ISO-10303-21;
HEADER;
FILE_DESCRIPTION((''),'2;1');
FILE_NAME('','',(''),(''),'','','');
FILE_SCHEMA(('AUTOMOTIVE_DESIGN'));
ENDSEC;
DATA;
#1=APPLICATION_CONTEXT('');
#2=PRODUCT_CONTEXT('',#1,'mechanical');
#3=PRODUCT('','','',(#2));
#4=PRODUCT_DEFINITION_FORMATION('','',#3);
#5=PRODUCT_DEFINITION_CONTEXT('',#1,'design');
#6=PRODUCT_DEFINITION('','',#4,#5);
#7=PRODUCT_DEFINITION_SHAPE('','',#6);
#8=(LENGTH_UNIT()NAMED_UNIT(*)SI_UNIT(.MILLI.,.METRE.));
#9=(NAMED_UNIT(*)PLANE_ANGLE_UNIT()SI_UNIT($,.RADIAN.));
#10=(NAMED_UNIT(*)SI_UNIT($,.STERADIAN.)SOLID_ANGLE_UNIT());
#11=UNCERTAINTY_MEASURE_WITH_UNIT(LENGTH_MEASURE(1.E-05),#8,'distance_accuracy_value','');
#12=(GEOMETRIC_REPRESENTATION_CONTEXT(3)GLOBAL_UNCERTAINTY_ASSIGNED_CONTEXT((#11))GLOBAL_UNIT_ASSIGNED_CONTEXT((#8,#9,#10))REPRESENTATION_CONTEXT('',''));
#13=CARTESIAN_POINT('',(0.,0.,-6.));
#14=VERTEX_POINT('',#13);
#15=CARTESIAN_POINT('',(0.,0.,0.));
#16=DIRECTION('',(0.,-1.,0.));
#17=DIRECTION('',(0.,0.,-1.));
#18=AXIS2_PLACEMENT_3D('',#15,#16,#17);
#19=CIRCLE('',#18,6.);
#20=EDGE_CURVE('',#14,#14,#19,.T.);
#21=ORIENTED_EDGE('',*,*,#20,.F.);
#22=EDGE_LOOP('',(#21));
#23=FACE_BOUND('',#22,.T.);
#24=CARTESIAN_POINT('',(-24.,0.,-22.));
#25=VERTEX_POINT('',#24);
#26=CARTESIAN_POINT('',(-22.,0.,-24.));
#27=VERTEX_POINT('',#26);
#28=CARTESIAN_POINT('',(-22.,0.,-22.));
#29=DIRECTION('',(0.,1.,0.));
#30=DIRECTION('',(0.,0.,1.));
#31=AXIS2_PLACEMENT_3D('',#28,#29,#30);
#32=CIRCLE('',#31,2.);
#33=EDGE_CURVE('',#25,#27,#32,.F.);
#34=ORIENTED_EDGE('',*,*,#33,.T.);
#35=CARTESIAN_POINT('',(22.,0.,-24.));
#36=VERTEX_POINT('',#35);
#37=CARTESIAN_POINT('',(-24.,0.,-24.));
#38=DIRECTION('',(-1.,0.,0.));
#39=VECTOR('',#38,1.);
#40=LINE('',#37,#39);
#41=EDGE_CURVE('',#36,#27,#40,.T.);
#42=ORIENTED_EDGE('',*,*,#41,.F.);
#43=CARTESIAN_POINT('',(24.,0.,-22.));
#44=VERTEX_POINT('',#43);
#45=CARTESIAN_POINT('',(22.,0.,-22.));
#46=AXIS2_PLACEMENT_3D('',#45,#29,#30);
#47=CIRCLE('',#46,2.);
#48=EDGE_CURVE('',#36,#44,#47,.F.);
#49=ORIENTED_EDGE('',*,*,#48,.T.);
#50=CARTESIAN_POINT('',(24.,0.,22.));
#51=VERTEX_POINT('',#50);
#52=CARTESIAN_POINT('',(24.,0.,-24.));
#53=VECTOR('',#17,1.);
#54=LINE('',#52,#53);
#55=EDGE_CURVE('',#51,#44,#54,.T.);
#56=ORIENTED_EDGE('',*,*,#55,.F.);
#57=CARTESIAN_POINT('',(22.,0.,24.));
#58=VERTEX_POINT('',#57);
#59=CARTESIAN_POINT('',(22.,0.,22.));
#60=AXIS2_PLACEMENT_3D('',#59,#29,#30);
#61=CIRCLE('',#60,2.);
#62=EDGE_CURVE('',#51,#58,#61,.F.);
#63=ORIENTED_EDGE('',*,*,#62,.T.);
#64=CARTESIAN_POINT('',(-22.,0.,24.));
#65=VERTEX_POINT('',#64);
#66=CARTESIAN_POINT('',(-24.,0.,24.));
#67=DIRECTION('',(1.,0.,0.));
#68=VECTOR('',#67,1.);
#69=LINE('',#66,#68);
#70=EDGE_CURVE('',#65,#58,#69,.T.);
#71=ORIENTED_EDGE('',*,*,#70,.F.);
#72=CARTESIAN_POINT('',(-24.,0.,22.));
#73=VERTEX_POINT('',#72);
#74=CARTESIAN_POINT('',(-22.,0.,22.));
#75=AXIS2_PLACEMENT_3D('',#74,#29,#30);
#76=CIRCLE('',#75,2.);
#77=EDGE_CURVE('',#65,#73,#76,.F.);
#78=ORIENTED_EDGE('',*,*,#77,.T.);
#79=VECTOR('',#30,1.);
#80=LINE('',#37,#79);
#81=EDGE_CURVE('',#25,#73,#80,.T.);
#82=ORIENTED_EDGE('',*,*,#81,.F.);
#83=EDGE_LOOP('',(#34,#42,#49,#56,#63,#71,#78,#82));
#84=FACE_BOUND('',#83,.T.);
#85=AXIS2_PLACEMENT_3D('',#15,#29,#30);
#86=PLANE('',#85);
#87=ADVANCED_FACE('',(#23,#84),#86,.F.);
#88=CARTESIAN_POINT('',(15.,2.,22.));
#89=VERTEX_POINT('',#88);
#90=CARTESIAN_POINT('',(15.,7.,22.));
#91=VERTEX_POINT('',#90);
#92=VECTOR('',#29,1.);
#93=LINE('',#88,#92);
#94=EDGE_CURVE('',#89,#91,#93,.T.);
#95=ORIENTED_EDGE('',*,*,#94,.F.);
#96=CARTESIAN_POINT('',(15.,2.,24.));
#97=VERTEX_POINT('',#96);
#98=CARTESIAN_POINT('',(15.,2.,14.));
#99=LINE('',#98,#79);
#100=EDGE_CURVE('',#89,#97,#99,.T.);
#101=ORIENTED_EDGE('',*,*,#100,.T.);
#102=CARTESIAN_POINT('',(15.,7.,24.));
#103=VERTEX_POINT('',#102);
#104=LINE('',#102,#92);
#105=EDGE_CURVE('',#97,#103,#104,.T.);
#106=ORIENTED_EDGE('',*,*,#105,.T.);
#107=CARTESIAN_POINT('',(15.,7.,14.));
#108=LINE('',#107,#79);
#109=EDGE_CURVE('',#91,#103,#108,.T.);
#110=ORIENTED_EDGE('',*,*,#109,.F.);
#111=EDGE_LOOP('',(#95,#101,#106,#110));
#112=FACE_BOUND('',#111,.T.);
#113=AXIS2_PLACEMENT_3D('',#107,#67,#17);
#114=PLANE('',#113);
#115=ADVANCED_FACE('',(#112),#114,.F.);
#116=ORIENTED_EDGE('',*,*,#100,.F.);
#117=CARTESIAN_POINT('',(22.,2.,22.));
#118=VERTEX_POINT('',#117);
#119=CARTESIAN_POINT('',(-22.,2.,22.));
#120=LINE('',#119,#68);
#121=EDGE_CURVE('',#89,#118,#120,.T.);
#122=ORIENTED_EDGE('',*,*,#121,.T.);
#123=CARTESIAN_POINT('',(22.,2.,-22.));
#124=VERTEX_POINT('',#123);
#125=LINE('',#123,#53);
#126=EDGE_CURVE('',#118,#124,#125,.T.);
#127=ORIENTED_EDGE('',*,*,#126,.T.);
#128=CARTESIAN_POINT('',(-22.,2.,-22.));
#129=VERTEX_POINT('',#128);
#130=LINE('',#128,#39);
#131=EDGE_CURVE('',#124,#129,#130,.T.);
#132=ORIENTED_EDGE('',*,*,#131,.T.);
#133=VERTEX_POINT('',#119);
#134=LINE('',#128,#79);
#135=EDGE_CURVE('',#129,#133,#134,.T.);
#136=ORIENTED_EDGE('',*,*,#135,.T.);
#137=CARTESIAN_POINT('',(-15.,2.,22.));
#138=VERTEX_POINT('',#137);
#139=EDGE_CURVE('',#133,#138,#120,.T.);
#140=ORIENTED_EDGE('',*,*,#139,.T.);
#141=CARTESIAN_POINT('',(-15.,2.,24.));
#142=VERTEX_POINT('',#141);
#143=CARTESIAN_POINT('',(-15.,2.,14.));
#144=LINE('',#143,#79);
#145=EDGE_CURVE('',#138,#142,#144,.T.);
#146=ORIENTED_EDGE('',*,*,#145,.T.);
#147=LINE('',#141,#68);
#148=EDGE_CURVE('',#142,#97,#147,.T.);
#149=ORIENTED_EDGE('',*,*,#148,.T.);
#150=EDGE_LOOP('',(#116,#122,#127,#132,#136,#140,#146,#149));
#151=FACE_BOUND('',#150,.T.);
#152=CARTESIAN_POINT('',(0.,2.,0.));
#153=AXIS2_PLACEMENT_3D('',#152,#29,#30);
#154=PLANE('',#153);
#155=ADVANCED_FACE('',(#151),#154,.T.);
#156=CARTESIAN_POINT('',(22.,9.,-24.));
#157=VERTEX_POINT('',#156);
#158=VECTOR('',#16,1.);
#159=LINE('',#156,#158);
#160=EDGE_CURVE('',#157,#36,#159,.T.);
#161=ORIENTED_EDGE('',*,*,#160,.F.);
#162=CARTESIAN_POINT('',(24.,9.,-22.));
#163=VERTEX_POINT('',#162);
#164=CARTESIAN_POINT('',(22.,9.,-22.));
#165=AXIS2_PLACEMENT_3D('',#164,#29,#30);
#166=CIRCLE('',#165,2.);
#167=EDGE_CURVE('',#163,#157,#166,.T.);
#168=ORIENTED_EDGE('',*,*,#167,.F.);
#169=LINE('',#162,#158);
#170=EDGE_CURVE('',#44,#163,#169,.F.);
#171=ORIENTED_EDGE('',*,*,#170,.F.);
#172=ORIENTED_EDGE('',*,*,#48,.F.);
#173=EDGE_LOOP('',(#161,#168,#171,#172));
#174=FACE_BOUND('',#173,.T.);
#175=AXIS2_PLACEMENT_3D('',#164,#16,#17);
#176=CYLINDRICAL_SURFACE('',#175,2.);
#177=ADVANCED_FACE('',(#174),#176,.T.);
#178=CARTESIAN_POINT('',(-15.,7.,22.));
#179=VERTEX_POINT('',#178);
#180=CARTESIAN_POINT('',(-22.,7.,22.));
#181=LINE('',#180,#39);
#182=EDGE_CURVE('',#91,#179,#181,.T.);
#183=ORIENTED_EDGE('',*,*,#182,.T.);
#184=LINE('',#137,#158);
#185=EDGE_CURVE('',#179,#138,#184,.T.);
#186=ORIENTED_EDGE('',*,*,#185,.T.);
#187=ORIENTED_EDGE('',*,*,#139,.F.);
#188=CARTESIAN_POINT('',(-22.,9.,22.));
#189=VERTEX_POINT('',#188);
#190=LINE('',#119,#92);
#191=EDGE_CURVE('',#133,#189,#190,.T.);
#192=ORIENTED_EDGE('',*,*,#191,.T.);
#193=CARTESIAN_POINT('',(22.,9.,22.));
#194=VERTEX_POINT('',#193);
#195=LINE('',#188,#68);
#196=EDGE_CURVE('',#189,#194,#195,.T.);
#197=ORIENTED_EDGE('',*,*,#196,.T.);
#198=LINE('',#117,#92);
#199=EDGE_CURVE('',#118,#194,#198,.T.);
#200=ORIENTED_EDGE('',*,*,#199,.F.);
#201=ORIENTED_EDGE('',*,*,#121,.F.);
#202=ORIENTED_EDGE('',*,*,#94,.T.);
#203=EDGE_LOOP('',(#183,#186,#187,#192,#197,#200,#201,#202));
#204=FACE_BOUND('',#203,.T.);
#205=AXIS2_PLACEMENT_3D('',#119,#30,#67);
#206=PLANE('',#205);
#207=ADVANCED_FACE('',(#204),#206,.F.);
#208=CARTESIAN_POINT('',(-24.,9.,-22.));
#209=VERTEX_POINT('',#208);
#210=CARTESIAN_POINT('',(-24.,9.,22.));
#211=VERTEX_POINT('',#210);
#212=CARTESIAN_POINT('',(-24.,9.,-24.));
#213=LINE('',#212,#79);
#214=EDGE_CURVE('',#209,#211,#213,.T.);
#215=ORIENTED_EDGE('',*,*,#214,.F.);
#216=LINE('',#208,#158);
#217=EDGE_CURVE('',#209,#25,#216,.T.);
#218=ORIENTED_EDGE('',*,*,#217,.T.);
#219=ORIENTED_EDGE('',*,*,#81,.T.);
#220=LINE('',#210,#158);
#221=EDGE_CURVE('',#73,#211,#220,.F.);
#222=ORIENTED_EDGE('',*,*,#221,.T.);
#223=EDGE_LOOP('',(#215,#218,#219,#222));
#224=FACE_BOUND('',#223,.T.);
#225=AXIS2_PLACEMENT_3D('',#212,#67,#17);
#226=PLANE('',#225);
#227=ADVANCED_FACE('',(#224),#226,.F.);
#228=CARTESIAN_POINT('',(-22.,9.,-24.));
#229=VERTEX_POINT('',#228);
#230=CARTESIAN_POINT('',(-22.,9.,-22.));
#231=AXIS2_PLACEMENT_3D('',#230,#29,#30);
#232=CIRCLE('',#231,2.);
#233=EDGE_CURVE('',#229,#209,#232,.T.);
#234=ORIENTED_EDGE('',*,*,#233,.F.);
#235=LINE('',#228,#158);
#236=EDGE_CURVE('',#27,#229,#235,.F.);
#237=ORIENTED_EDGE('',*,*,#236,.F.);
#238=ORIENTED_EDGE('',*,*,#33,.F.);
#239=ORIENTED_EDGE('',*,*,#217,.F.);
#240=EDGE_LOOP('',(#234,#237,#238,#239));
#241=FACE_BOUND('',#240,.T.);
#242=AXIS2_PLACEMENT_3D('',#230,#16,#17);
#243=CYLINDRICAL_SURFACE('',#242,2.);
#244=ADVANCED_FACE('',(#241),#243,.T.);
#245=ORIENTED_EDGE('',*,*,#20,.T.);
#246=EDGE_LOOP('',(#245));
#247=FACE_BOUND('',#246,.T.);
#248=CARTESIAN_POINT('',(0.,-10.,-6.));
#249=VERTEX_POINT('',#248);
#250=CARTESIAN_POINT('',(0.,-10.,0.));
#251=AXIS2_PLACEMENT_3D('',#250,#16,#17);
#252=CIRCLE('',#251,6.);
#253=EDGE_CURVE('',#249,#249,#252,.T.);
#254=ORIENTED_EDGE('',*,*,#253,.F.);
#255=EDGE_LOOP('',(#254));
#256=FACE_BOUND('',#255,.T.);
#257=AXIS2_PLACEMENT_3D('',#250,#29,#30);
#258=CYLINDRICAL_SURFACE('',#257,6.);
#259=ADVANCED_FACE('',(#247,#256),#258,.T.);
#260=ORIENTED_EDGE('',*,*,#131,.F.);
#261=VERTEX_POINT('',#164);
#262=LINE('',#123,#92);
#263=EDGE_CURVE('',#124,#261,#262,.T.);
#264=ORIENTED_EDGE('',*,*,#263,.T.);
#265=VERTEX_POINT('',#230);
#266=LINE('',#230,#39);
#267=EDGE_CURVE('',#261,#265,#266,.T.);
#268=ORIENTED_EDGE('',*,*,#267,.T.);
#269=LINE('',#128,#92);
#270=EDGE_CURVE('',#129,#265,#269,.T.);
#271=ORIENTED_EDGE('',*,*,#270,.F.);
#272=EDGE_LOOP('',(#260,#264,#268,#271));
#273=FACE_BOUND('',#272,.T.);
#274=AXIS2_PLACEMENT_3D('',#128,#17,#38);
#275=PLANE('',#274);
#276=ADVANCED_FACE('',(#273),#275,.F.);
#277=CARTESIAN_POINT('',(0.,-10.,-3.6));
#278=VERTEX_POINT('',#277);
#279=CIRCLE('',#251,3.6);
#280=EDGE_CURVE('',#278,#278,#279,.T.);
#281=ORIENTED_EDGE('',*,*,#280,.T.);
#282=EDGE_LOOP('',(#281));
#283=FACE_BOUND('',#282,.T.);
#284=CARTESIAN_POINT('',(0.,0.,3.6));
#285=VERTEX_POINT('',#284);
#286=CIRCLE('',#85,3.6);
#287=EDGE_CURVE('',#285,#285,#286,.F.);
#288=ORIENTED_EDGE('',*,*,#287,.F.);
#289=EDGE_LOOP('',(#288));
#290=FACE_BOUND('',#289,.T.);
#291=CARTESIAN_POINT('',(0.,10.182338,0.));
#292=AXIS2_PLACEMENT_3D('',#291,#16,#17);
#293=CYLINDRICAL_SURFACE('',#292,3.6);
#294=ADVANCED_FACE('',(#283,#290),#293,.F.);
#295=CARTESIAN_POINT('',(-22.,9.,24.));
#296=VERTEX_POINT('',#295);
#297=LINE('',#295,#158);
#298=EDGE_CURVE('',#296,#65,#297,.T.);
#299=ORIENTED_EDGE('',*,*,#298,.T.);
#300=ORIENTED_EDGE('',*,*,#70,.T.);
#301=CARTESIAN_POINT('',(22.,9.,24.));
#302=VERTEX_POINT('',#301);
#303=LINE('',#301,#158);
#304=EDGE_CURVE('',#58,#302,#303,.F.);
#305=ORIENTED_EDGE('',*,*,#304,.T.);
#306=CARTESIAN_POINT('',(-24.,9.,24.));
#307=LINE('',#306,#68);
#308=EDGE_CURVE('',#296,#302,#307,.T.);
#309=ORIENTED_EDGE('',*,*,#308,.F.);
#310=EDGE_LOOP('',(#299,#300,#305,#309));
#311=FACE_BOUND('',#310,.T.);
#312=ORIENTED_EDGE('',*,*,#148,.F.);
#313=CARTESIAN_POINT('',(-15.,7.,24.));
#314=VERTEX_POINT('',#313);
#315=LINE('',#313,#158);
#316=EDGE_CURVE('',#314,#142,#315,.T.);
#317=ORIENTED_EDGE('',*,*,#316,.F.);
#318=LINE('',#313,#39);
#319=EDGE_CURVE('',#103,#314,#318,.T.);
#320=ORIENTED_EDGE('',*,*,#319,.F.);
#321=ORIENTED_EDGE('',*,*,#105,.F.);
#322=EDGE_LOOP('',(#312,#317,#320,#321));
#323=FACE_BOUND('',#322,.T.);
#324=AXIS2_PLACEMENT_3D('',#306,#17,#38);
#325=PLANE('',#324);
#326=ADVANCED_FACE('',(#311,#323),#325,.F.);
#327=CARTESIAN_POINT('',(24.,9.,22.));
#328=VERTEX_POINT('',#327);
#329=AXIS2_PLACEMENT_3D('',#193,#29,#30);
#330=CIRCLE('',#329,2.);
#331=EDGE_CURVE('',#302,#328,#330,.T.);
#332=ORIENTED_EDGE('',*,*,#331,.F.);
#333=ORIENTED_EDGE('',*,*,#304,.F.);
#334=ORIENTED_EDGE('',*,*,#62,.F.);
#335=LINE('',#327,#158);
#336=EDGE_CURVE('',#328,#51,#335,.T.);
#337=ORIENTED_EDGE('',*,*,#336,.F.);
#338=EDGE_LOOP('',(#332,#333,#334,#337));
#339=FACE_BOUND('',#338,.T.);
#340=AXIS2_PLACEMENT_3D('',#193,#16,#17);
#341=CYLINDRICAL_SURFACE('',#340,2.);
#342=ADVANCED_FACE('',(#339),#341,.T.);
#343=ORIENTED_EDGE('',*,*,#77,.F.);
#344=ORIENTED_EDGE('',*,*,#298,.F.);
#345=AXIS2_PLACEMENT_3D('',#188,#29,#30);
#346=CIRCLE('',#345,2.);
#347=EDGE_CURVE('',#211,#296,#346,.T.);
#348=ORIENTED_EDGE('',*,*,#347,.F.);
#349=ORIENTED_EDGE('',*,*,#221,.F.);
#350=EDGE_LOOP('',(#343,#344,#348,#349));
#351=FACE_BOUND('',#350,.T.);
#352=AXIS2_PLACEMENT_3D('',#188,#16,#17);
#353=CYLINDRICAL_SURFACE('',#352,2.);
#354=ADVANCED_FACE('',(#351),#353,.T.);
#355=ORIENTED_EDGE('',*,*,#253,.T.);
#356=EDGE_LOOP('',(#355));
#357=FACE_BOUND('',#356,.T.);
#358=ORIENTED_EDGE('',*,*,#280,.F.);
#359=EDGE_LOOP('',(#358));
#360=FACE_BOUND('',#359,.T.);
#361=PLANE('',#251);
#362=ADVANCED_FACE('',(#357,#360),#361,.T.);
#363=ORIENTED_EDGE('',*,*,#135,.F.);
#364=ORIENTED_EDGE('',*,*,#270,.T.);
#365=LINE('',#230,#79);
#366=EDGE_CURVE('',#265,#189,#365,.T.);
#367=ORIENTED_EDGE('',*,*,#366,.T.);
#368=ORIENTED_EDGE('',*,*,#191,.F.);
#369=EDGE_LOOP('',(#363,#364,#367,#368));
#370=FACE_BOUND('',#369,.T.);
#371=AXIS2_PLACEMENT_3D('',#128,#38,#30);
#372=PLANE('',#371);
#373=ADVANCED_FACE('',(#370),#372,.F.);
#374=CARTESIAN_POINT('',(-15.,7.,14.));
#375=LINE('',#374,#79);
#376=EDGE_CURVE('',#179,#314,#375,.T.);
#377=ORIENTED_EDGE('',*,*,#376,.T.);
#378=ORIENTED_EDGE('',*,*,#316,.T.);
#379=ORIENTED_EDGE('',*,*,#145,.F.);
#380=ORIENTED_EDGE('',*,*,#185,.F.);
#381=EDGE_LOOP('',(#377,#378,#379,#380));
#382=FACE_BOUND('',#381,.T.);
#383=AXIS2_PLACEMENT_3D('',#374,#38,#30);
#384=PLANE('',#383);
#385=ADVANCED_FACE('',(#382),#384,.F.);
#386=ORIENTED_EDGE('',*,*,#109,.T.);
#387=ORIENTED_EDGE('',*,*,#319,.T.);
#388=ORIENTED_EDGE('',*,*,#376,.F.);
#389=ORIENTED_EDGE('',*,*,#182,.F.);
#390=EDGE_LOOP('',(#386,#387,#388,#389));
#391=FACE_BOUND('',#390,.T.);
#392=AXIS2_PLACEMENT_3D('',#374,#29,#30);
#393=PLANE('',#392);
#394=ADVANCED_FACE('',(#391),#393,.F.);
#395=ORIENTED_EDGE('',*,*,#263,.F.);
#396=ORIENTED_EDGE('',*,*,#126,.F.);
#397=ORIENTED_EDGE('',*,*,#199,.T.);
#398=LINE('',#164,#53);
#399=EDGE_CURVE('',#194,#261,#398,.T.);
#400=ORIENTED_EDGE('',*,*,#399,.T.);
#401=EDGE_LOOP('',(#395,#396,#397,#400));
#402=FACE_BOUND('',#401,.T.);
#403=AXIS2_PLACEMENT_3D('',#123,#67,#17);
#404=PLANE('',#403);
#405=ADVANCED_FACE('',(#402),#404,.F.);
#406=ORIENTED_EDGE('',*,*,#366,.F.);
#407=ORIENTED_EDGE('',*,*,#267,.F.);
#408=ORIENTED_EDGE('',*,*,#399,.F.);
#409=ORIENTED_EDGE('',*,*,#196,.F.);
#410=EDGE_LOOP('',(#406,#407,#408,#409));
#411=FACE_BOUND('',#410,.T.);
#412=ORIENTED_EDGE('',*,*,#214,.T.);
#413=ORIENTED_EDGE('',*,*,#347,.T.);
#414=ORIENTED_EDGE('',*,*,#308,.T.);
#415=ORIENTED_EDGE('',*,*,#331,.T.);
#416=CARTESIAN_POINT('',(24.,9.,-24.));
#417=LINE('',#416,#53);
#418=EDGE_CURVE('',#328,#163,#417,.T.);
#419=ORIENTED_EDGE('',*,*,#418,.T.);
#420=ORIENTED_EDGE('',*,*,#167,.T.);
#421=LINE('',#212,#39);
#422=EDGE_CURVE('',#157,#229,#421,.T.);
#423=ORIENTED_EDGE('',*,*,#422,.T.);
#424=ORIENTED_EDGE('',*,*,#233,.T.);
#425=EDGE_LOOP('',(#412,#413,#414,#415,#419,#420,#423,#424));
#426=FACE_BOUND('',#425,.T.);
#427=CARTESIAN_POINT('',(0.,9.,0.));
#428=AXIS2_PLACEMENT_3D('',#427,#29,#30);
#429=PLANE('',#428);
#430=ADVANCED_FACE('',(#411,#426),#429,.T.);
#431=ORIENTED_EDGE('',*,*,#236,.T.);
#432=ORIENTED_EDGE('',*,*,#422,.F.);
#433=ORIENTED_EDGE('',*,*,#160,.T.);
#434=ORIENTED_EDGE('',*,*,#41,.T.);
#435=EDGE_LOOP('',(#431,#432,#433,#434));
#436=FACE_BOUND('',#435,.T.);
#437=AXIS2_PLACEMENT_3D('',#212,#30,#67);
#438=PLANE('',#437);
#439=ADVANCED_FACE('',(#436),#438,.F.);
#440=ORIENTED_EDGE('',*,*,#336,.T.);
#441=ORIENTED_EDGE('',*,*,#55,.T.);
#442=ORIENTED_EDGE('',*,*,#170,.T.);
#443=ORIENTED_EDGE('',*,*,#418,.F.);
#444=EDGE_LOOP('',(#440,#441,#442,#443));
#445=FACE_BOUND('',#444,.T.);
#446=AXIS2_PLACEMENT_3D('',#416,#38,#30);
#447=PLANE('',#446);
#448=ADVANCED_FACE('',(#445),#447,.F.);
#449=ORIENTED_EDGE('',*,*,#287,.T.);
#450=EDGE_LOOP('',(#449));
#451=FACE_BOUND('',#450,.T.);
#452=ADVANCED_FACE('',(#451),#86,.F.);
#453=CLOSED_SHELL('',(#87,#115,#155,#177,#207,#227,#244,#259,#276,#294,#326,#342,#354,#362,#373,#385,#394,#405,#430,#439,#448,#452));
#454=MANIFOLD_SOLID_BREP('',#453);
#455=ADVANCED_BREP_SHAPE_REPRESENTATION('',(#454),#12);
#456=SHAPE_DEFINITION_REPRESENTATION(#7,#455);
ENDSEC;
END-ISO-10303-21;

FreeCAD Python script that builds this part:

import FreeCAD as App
import Part
import Sketcher

V = App.Vector


def edges_at(feature, points):
    """Names of the edges that pass closest to the given points."""
    edges = feature.Shape.Edges
    near = lambda p: min(range(len(edges)), key=lambda i: edges[i].distToShape(Part.Vertex(*p))[0])
    return sorted({f"Edge{near(p) + 1}" for p in points})


def add_polygon(sketch, points):
    """Adds a closed chain of lines whose ends are joined by coincident constraints."""
    first, n = sketch.GeometryCount, len(points)
    for a, b in zip(points, points[1:] + points[:1]):
        sketch.addGeometry(Part.LineSegment(App.Vector(*a, 0), App.Vector(*b, 0)), False)
    for i in range(n):
        sketch.addConstraint(Sketcher.Constraint("Coincident", first + i, 2, first + (i + 1) % n, 1))

doc = App.newDocument("Part")
params = doc.addObject("Spreadsheet::Sheet", "Params")
for row, (alias, value) in enumerate([
    ("sketch1_width", "48 mm"),
    ("pad1_length", "9 mm"),
    ("sketch2_width", "44 mm"),
    ("pocket1_length", "7 mm"),
    ("sketch3_diameter", "12 mm"),
    ("pad2_length", "10 mm"),
    ("sketch4_diameter", "7.2 mm"),
    ("pocket2_length", "10 mm"),
    ("sketch5_width", "30 mm"),
    ("sketch5_height", "5 mm"),
    ("pocket3_length", "10 mm"),
    ("fillet_radius", "2 mm"),
], start=1):
    params.set(f"A{row}", alias)
    params.set(f"B{row}", "=" + value)
    params.setAlias(f"B{row}", alias)

body = doc.addObject("PartDesign::Body", "Body")

# Sketch on XZ plane
sketch1 = doc.addObject("Sketcher::SketchObject", "Sketch")
body.addObject(sketch1)
sketch1.AttachmentSupport = (doc.XZ_Plane, [""])
sketch1.MapMode = "FlatFace"
add_polygon(sketch1, [(-24, -24), (-24, 24), (24, 24), (24, -24)])  # lines 0-3
sketch1.addConstraint(Sketcher.Constraint("Vertical", 0))
sketch1.addConstraint(Sketcher.Constraint("Horizontal", 1))
sketch1.addConstraint(Sketcher.Constraint("Vertical", 2))
sketch1.addConstraint(Sketcher.Constraint("Horizontal", 3))
sketch1.addConstraint(Sketcher.Constraint("Symmetric", 0, 2, 2, 2, -1, 1))
sketch1.addConstraint(Sketcher.Constraint("Equal", 3, 0))
sketch1.addConstraint(Sketcher.Constraint("DistanceX", 1, 1, 1, 2, 48.0))
sketch1.setExpression("Constraints[10]", "Params.sketch1_width")
pad1 = doc.addObject("PartDesign::Pad", "Pad")
body.addObject(pad1)
pad1.Profile = sketch1
pad1.setExpression("Length", "Params.pad1_length")
pad1.Reversed = True

# Sketch on XZ plane
sketch2 = doc.addObject("Sketcher::SketchObject", "Sketch001")
body.addObject(sketch2)
sketch2.AttachmentSupport = (doc.XZ_Plane, [""])
sketch2.MapMode = "FlatFace"
sketch2.AttachmentOffset = App.Placement(V(0, 0, -9), App.Rotation())
add_polygon(sketch2, [(-22, -22), (-22, 22), (22, 22), (22, -22)])  # lines 0-3
sketch2.addConstraint(Sketcher.Constraint("Vertical", 0))
sketch2.addConstraint(Sketcher.Constraint("Horizontal", 1))
sketch2.addConstraint(Sketcher.Constraint("Vertical", 2))
sketch2.addConstraint(Sketcher.Constraint("Horizontal", 3))
sketch2.addConstraint(Sketcher.Constraint("Symmetric", 0, 2, 2, 2, -1, 1))
sketch2.addConstraint(Sketcher.Constraint("Equal", 3, 0))
sketch2.addConstraint(Sketcher.Constraint("DistanceX", 1, 1, 1, 2, 44.0))
sketch2.setExpression("Constraints[10]", "Params.sketch2_width")
pocket1 = doc.addObject("PartDesign::Pocket", "Pocket")
body.addObject(pocket1)
pocket1.Profile = sketch2
pocket1.setExpression("Length", "Params.pocket1_length")
pocket1.Reversed = True

# Sketch on XZ plane
sketch3 = doc.addObject("Sketcher::SketchObject", "Sketch002")
body.addObject(sketch3)
sketch3.AttachmentSupport = (doc.XZ_Plane, [""])
sketch3.MapMode = "FlatFace"
sketch3.addGeometry(Part.Circle(V(0, 0, 0), V(0, 0, 1), 6), False)
sketch3.addConstraint(Sketcher.Constraint("Coincident", 0, 3, -1, 1))
sketch3.addConstraint(Sketcher.Constraint("Diameter", 0, 12.0))
sketch3.setExpression("Constraints[1]", "Params.sketch3_diameter")
pad2 = doc.addObject("PartDesign::Pad", "Pad001")
body.addObject(pad2)
pad2.Profile = sketch3
pad2.setExpression("Length", "Params.pad2_length")

# Sketch on XZ plane
sketch4 = doc.addObject("Sketcher::SketchObject", "Sketch003")
body.addObject(sketch4)
sketch4.AttachmentSupport = (doc.XZ_Plane, [""])
sketch4.MapMode = "FlatFace"
sketch4.AttachmentOffset = App.Placement(V(0, 0, 10), App.Rotation())
sketch4.addGeometry(Part.Circle(V(0, 0, 0), V(0, 0, 1), 3.6), False)
sketch4.addConstraint(Sketcher.Constraint("Coincident", 0, 3, -1, 1))
sketch4.addConstraint(Sketcher.Constraint("Diameter", 0, 7.2))
sketch4.setExpression("Constraints[1]", "Params.sketch4_diameter")
pocket2 = doc.addObject("PartDesign::Pocket", "Pocket001")
body.addObject(pocket2)
pocket2.Profile = sketch4
pocket2.setExpression("Length", "Params.pocket2_length")

# Sketch on XY plane
sketch5 = doc.addObject("Sketcher::SketchObject", "Sketch004")
body.addObject(sketch5)
sketch5.AttachmentSupport = (doc.XY_Plane, [""])
sketch5.MapMode = "FlatFace"
sketch5.AttachmentOffset = App.Placement(V(0, 0, 24), App.Rotation())
add_polygon(sketch5, [(-15, 7), (-15, 2), (15, 2), (15, 7)])  # lines 0-3
sketch5.addConstraint(Sketcher.Constraint("Vertical", 0))
sketch5.addConstraint(Sketcher.Constraint("Horizontal", 1))
sketch5.addConstraint(Sketcher.Constraint("Vertical", 2))
sketch5.addConstraint(Sketcher.Constraint("Horizontal", 3))
sketch5.addConstraint(Sketcher.Constraint("DistanceX", 1, 1, 1, 2, 30.0))
sketch5.addConstraint(Sketcher.Constraint("DistanceY", 0, 2, 0, 1, 5.0))
sketch5.addConstraint(Sketcher.Constraint("DistanceX", 0, 2, -1, 1, 15.0))
sketch5.addConstraint(Sketcher.Constraint("DistanceY", -1, 1, 0, 2, 2.0))
sketch5.setExpression("Constraints[8]", "Params.sketch5_width")
sketch5.setExpression("Constraints[9]", "Params.sketch5_height")
pocket3 = doc.addObject("PartDesign::Pocket", "Pocket002")
body.addObject(pocket3)
pocket3.Profile = sketch5
pocket3.setExpression("Length", "Params.pocket3_length")
doc.recompute()

fillet = doc.addObject("PartDesign::Fillet", "Fillet")
body.addObject(fillet)
fillet.Base = (pocket3, edges_at(pocket3, [
    (24, 4.5, 24),
    (-24, 4.5, 24),
    (-24, 4.5, -24),
    (24, 4.5, -24),
]))
fillet.setExpression("Radius", "Params.fillet_radius")

doc.recompute()
